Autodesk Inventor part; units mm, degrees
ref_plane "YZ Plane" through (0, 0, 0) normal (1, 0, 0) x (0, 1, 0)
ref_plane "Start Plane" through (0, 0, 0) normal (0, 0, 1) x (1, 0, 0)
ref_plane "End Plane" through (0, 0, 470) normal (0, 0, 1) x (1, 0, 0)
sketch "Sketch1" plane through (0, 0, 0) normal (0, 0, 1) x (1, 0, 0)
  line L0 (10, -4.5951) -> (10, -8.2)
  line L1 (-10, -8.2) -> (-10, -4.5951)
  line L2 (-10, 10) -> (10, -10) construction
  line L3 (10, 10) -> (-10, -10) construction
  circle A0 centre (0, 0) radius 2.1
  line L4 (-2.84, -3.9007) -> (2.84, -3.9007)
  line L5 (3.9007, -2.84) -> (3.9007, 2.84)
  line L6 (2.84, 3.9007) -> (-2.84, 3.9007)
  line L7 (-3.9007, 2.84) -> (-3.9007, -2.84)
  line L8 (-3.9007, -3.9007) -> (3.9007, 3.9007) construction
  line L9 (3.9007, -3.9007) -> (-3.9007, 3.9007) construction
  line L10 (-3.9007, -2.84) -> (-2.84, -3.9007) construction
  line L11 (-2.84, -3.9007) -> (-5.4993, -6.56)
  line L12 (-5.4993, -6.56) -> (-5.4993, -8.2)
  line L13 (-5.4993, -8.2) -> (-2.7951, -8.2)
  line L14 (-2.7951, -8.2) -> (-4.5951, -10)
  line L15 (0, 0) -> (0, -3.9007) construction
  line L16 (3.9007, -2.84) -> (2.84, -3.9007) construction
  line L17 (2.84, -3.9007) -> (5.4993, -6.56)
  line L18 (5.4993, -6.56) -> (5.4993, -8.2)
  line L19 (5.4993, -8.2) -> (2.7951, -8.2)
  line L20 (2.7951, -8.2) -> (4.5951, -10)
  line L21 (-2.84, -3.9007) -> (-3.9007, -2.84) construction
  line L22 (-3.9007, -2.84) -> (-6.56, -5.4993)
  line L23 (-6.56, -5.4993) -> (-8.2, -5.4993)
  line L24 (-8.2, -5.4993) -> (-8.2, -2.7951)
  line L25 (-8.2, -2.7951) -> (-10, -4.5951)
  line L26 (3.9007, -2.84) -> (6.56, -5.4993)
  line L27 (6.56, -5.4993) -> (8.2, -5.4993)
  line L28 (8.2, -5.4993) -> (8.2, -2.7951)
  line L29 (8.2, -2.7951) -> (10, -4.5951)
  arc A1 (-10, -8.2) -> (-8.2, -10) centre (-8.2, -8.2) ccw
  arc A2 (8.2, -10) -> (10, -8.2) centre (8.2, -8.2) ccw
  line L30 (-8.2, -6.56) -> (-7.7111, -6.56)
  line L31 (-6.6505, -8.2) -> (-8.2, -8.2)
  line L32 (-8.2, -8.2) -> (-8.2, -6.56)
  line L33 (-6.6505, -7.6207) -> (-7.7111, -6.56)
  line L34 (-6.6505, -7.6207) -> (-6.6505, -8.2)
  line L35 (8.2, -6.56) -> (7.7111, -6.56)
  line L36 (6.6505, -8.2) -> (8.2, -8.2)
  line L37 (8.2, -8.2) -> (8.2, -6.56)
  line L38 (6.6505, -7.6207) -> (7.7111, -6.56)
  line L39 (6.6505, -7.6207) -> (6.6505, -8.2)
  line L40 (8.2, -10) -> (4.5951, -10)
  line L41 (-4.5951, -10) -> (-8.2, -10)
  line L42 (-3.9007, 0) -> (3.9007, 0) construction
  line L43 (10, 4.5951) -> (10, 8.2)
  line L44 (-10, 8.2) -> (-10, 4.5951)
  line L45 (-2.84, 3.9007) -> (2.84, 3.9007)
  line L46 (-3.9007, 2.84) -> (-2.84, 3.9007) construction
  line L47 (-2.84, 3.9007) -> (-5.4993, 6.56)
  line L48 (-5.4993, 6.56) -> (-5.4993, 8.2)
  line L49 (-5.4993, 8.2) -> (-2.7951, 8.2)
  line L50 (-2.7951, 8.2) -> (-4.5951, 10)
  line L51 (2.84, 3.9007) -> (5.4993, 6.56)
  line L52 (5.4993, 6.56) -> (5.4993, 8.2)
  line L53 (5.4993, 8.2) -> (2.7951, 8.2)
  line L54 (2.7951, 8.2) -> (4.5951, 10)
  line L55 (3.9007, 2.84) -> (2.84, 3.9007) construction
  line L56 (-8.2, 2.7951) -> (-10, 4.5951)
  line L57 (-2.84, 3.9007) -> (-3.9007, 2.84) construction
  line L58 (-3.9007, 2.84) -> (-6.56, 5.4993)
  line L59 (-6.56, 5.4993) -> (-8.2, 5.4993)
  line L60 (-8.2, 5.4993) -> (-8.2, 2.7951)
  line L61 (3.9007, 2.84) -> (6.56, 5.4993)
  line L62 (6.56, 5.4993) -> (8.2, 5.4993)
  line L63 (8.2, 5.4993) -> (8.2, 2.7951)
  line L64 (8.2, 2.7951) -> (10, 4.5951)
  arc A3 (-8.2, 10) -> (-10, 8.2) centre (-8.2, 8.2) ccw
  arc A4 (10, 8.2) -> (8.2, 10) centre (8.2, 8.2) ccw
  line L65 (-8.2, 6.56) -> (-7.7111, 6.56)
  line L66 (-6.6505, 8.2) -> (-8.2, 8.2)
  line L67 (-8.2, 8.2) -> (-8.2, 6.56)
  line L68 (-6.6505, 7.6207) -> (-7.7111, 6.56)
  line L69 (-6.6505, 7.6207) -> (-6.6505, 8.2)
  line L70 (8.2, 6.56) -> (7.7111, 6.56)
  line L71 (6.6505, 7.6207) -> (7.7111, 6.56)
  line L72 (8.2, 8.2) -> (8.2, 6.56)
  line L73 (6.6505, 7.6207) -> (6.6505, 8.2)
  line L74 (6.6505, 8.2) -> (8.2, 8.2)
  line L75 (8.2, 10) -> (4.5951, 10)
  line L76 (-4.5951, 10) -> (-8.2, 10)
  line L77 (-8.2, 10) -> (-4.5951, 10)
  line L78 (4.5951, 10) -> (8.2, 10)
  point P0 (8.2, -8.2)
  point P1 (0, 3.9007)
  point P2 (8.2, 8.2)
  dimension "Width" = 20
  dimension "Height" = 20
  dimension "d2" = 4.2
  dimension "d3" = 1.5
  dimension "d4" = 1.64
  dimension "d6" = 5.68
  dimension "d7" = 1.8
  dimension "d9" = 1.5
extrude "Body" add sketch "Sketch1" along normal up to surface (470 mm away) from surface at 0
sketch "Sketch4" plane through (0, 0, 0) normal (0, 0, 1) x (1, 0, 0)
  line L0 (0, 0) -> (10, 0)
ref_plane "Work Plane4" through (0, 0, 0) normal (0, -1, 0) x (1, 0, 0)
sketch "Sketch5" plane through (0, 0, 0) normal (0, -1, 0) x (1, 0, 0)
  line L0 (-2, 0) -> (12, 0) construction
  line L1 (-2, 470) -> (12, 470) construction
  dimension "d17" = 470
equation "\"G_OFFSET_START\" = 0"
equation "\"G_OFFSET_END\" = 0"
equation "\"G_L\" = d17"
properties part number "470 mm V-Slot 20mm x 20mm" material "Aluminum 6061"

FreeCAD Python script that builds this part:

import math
import FreeCAD as App
import Part
import Sketcher
from FreeCAD import Vector
Q = App.Units.Quantity


def add_polygon(sketch, points):
    """Adds a closed chain of lines whose ends are joined by coincident constraints."""
    first, n = sketch.GeometryCount, len(points)
    for a, b in zip(points, points[1:] + points[:1]):
        sketch.addGeometry(Part.LineSegment(App.Vector(*a, 0), App.Vector(*b, 0)), False)
    for i in range(n):
        sketch.addConstraint(Sketcher.Constraint("Coincident", first + i, 2, first + (i + 1) % n, 1))

doc = App.newDocument("Part")
body = doc.addObject("PartDesign::Body", "Body")

# Sketch on XY plane
sketch1 = doc.addObject("Sketcher::SketchObject", "Sketch")
body.addObject(sketch1)
sketch1.AttachmentSupport = (doc.XY_Plane, [""])
sketch1.MapMode = "FlatFace"
sketch1.addGeometry(Part.LineSegment(Vector(10, -8.2, 0), Vector(10, -4.6, 0)), False)  # 0
sketch1.addGeometry(Part.LineSegment(Vector(10, -4.6, 0), Vector(8.2, -2.8, 0)), False)  # 1
sketch1.addGeometry(Part.LineSegment(Vector(8.2, -2.8, 0), Vector(8.2, -5.5, 0)), False)  # 2
sketch1.addGeometry(Part.LineSegment(Vector(8.2, -5.5, 0), Vector(6.56, -5.5, 0)), False)  # 3
sketch1.addGeometry(Part.LineSegment(Vector(6.56, -5.5, 0), Vector(3.9, -2.84, 0)), False)  # 4
sketch1.addGeometry(Part.LineSegment(Vector(3.9, -2.84, 0), Vector(3.9, 2.84, 0)), False)  # 5
sketch1.addGeometry(Part.LineSegment(Vector(3.9, 2.84, 0), Vector(6.56, 5.5, 0)), False)  # 6
sketch1.addGeometry(Part.LineSegment(Vector(6.56, 5.5, 0), Vector(8.2, 5.5, 0)), False)  # 7
sketch1.addGeometry(Part.LineSegment(Vector(8.2, 5.5, 0), Vector(8.2, 2.8, 0)), False)  # 8
sketch1.addGeometry(Part.LineSegment(Vector(8.2, 2.8, 0), Vector(10, 4.6, 0)), False)  # 9
sketch1.addGeometry(Part.LineSegment(Vector(10, 4.6, 0), Vector(10, 8.2, 0)), False)  # 10
sketch1.addGeometry(Part.ArcOfCircle(Part.Circle(Vector(8.2, 8.2, 0), Vector(0, 0, 1), 1.8), math.radians(0), math.radians(90)), False)  # 11
sketch1.addGeometry(Part.LineSegment(Vector(8.2, 10, 0), Vector(4.6, 10, 0)), False)  # 12
sketch1.addGeometry(Part.LineSegment(Vector(4.6, 10, 0), Vector(2.8, 8.2, 0)), False)  # 13
sketch1.addGeometry(Part.LineSegment(Vector(2.8, 8.2, 0), Vector(5.5, 8.2, 0)), False)  # 14
sketch1.addGeometry(Part.LineSegment(Vector(5.5, 8.2, 0), Vector(5.5, 6.56, 0)), False)  # 15
sketch1.addGeometry(Part.LineSegment(Vector(5.5, 6.56, 0), Vector(2.84, 3.9, 0)), False)  # 16
sketch1.addGeometry(Part.LineSegment(Vector(2.84, 3.9, 0), Vector(-2.84, 3.9, 0)), False)  # 17
sketch1.addGeometry(Part.LineSegment(Vector(-2.84, 3.9, 0), Vector(-5.5, 6.56, 0)), False)  # 18
sketch1.addGeometry(Part.LineSegment(Vector(-5.5, 6.56, 0), Vector(-5.5, 8.2, 0)), False)  # 19
sketch1.addGeometry(Part.LineSegment(Vector(-5.5, 8.2, 0), Vector(-2.8, 8.2, 0)), False)  # 20
sketch1.addGeometry(Part.LineSegment(Vector(-2.8, 8.2, 0), Vector(-4.6, 10, 0)), False)  # 21
sketch1.addGeometry(Part.LineSegment(Vector(-4.6, 10, 0), Vector(-8.2, 10, 0)), False)  # 22
sketch1.addGeometry(Part.ArcOfCircle(Part.Circle(Vector(-8.2, 8.2, 0), Vector(0, 0, 1), 1.8), math.radians(90), math.radians(180)), False)  # 23
sketch1.addGeometry(Part.LineSegment(Vector(-10, 8.2, 0), Vector(-10, 4.6, 0)), False)  # 24
sketch1.addGeometry(Part.LineSegment(Vector(-10, 4.6, 0), Vector(-8.2, 2.8, 0)), False)  # 25
sketch1.addGeometry(Part.LineSegment(Vector(-8.2, 2.8, 0), Vector(-8.2, 5.5, 0)), False)  # 26
sketch1.addGeometry(Part.LineSegment(Vector(-8.2, 5.5, 0), Vector(-6.56, 5.5, 0)), False)  # 27
sketch1.addGeometry(Part.LineSegment(Vector(-6.56, 5.5, 0), Vector(-3.9, 2.84, 0)), False)  # 28
sketch1.addGeometry(Part.LineSegment(Vector(-3.9, 2.84, 0), Vector(-3.9, -2.84, 0)), False)  # 29
sketch1.addGeometry(Part.LineSegment(Vector(-3.9, -2.84, 0), Vector(-6.56, -5.5, 0)), False)  # 30
sketch1.addGeometry(Part.LineSegment(Vector(-6.56, -5.5, 0), Vector(-8.2, -5.5, 0)), False)  # 31
sketch1.addGeometry(Part.LineSegment(Vector(-8.2, -5.5, 0), Vector(-8.2, -2.8, 0)), False)  # 32
sketch1.addGeometry(Part.LineSegment(Vector(-8.2, -2.8, 0), Vector(-10, -4.6, 0)), False)  # 33
sketch1.addGeometry(Part.LineSegment(Vector(-10, -4.6, 0), Vector(-10, -8.2, 0)), False)  # 34
sketch1.addGeometry(Part.ArcOfCircle(Part.Circle(Vector(-8.2, -8.2, 0), Vector(0, 0, 1), 1.8), math.radians(180), math.radians(270)), False)  # 35
sketch1.addGeometry(Part.LineSegment(Vector(-8.2, -10, 0), Vector(-4.6, -10, 0)), False)  # 36
sketch1.addGeometry(Part.LineSegment(Vector(-4.6, -10, 0), Vector(-2.8, -8.2, 0)), False)  # 37
sketch1.addGeometry(Part.LineSegment(Vector(-2.8, -8.2, 0), Vector(-5.5, -8.2, 0)), False)  # 38
sketch1.addGeometry(Part.LineSegment(Vector(-5.5, -8.2, 0), Vector(-5.5, -6.56, 0)), False)  # 39
sketch1.addGeometry(Part.LineSegment(Vector(-5.5, -6.56, 0), Vector(-2.84, -3.9, 0)), False)  # 40
sketch1.addGeometry(Part.LineSegment(Vector(-2.84, -3.9, 0), Vector(2.84, -3.9, 0)), False)  # 41
sketch1.addGeometry(Part.LineSegment(Vector(2.84, -3.9, 0), Vector(5.5, -6.56, 0)), False)  # 42
sketch1.addGeometry(Part.LineSegment(Vector(5.5, -6.56, 0), Vector(5.5, -8.2, 0)), False)  # 43
sketch1.addGeometry(Part.LineSegment(Vector(5.5, -8.2, 0), Vector(2.8, -8.2, 0)), False)  # 44
sketch1.addGeometry(Part.LineSegment(Vector(2.8, -8.2, 0), Vector(4.6, -10, 0)), False)  # 45
sketch1.addGeometry(Part.LineSegment(Vector(4.6, -10, 0), Vector(8.2, -10, 0)), False)  # 46
sketch1.addGeometry(Part.ArcOfCircle(Part.Circle(Vector(8.2, -8.2, 0), Vector(0, 0, 1), 1.8), math.radians(-90), math.radians(0)), False)  # 47
add_polygon(sketch1, [(-8.2, -8.2), (-8.2, -6.56), (-7.71, -6.56), (-6.65, -7.62), (-6.65, -8.2)])  # lines 48-52
add_polygon(sketch1, [(7.71, -6.56), (8.2, -6.56), (8.2, -8.2), (6.65, -8.2), (6.65, -7.62)])  # lines 53-57
add_polygon(sketch1, [(-7.71, 6.56), (-8.2, 6.56), (-8.2, 8.2), (-6.65, 8.2), (-6.65, 7.62)])  # lines 58-62
sketch1.addGeometry(Part.Circle(Vector(0, 0, 0), Vector(0, 0, 1), 2.1), False)  # 63
add_polygon(sketch1, [(8.2, 8.2), (8.2, 6.56), (7.71, 6.56), (6.65, 7.62), (6.65, 8.2)])  # lines 64-68
sketch1.addConstraint(Sketcher.Constraint("Coincident", 0, 2, 1, 1))
sketch1.addConstraint(Sketcher.Constraint("Coincident", 1, 2, 2, 1))
sketch1.addConstraint(Sketcher.Constraint("Coincident", 2, 2, 3, 1))
sketch1.addConstraint(Sketcher.Constraint("Coincident", 3, 2, 4, 1))
sketch1.addConstraint(Sketcher.Constraint("Coincident", 4, 2, 5, 1))
sketch1.addConstraint(Sketcher.Constraint("Coincident", 5, 2, 6, 1))
sketch1.addConstraint(Sketcher.Constraint("Coincident", 6, 2, 7, 1))
sketch1.addConstraint(Sketcher.Constraint("Coincident", 7, 2, 8, 1))
sketch1.addConstraint(Sketcher.Constraint("Coincident", 8, 2, 9, 1))
sketch1.addConstraint(Sketcher.Constraint("Coincident", 9, 2, 10, 1))
sketch1.addConstraint(Sketcher.Constraint("Tangent", 10, 2, 11, 1))
sketch1.addConstraint(Sketcher.Constraint("Tangent", 11, 2, 12, 1))
sketch1.addConstraint(Sketcher.Constraint("Coincident", 12, 2, 13, 1))
sketch1.addConstraint(Sketcher.Constraint("Coincident", 13, 2, 14, 1))
sketch1.addConstraint(Sketcher.Constraint("Coincident", 14, 2, 15, 1))
sketch1.addConstraint(Sketcher.Constraint("Coincident", 15, 2, 16, 1))
sketch1.addConstraint(Sketcher.Constraint("Coincident", 16, 2, 17, 1))
sketch1.addConstraint(Sketcher.Constraint("Coincident", 17, 2, 18, 1))
sketch1.addConstraint(Sketcher.Constraint("Coincident", 18, 2, 19, 1))
sketch1.addConstraint(Sketcher.Constraint("Coincident", 19, 2, 20, 1))
sketch1.addConstraint(Sketcher.Constraint("Coincident", 20, 2, 21, 1))
sketch1.addConstraint(Sketcher.Constraint("Coincident", 21, 2, 22, 1))
sketch1.addConstraint(Sketcher.Constraint("Tangent", 22, 2, 23, 1))
sketch1.addConstraint(Sketcher.Constraint("Tangent", 23, 2, 24, 1))
sketch1.addConstraint(Sketcher.Constraint("Coincident", 24, 2, 25, 1))
sketch1.addConstraint(Sketcher.Constraint("Coincident", 25, 2, 26, 1))
sketch1.addConstraint(Sketcher.Constraint("Coincident", 26, 2, 27, 1))
sketch1.addConstraint(Sketcher.Constraint("Coincident", 27, 2, 28, 1))
sketch1.addConstraint(Sketcher.Constraint("Coincident", 28, 2, 29, 1))
sketch1.addConstraint(Sketcher.Constraint("Coincident", 29, 2, 30, 1))
sketch1.addConstraint(Sketcher.Constraint("Coincident", 30, 2, 31, 1))
sketch1.addConstraint(Sketcher.Constraint("Coincident", 31, 2, 32, 1))
sketch1.addConstraint(Sketcher.Constraint("Coincident", 32, 2, 33, 1))
sketch1.addConstraint(Sketcher.Constraint("Coincident", 33, 2, 34, 1))
sketch1.addConstraint(Sketcher.Constraint("Tangent", 34, 2, 35, 1))
sketch1.addConstraint(Sketcher.Constraint("Tangent", 35, 2, 36, 1))
sketch1.addConstraint(Sketcher.Constraint("Coincident", 36, 2, 37, 1))
sketch1.addConstraint(Sketcher.Constraint("Coincident", 37, 2, 38, 1))
sketch1.addConstraint(Sketcher.Constraint("Coincident", 38, 2, 39, 1))
sketch1.addConstraint(Sketcher.Constraint("Coincident", 39, 2, 40, 1))
sketch1.addConstraint(Sketcher.Constraint("Coincident", 40, 2, 41, 1))
sketch1.addConstraint(Sketcher.Constraint("Coincident", 41, 2, 42, 1))
sketch1.addConstraint(Sketcher.Constraint("Coincident", 42, 2, 43, 1))
sketch1.addConstraint(Sketcher.Constraint("Coincident", 43, 2, 44, 1))
sketch1.addConstraint(Sketcher.Constraint("Coincident", 44, 2, 45, 1))
sketch1.addConstraint(Sketcher.Constraint("Coincident", 45, 2, 46, 1))
sketch1.addConstraint(Sketcher.Constraint("Tangent", 46, 2, 47, 1))
sketch1.addConstraint(Sketcher.Constraint("Tangent", 47, 2, 0, 1))
sketch1.addConstraint(Sketcher.Constraint("Vertical", 0))
sketch1.addConstraint(Sketcher.Constraint("Vertical", 2))
sketch1.addConstraint(Sketcher.Constraint("Horizontal", 3))
sketch1.addConstraint(Sketcher.Constraint("Vertical", 5))
sketch1.addConstraint(Sketcher.Constraint("Horizontal", 7))
sketch1.addConstraint(Sketcher.Constraint("Vertical", 8))
sketch1.addConstraint(Sketcher.Constraint("Vertical", 10))
sketch1.addConstraint(Sketcher.Constraint("Horizontal", 12))
sketch1.addConstraint(Sketcher.Constraint("Horizontal", 14))
sketch1.addConstraint(Sketcher.Constraint("Vertical", 15))
sketch1.addConstraint(Sketcher.Constraint("Horizontal", 17))
sketch1.addConstraint(Sketcher.Constraint("Vertical", 19))
sketch1.addConstraint(Sketcher.Constraint("Horizontal", 20))
sketch1.addConstraint(Sketcher.Constraint("Horizontal", 22))
sketch1.addConstraint(Sketcher.Constraint("Vertical", 24))
sketch1.addConstraint(Sketcher.Constraint("Vertical", 26))
sketch1.addConstraint(Sketcher.Constraint("Horizontal", 27))
sketch1.addConstraint(Sketcher.Constraint("Vertical", 29))
sketch1.addConstraint(Sketcher.Constraint("Horizontal", 31))
sketch1.addConstraint(Sketcher.Constraint("Vertical", 32))
sketch1.addConstraint(Sketcher.Constraint("Vertical", 34))
sketch1.addConstraint(Sketcher.Constraint("Horizontal", 36))
sketch1.addConstraint(Sketcher.Constraint("Horizontal", 38))
sketch1.addConstraint(Sketcher.Constraint("Vertical", 39))
sketch1.addConstraint(Sketcher.Constraint("Horizontal", 41))
sketch1.addConstraint(Sketcher.Constraint("Vertical", 43))
sketch1.addConstraint(Sketcher.Constraint("Horizontal", 44))
sketch1.addConstraint(Sketcher.Constraint("Horizontal", 46))
sketch1.addConstraint(Sketcher.Constraint("Vertical", 48))
sketch1.addConstraint(Sketcher.Constraint("Horizontal", 49))
sketch1.addConstraint(Sketcher.Constraint("Vertical", 51))
sketch1.addConstraint(Sketcher.Constraint("Horizontal", 52))
sketch1.addConstraint(Sketcher.Constraint("Horizontal", 53))
sketch1.addConstraint(Sketcher.Constraint("Vertical", 54))
sketch1.addConstraint(Sketcher.Constraint("Horizontal", 55))
sketch1.addConstraint(Sketcher.Constraint("Vertical", 56))
sketch1.addConstraint(Sketcher.Constraint("Horizontal", 58))
sketch1.addConstraint(Sketcher.Constraint("Vertical", 59))
sketch1.addConstraint(Sketcher.Constraint("Horizontal", 60))
sketch1.addConstraint(Sketcher.Constraint("Vertical", 61))
sketch1.addConstraint(Sketcher.Constraint("Vertical", 64))
sketch1.addConstraint(Sketcher.Constraint("Horizontal", 65))
sketch1.addConstraint(Sketcher.Constraint("Vertical", 67))
sketch1.addConstraint(Sketcher.Constraint("Horizontal", 68))
sketch1.addConstraint(Sketcher.Constraint("Coincident", 63, 3, -1, 1))
sketch1.addConstraint(Sketcher.Constraint("Coincident", 52, 2, 35, 3))
sketch1.addConstraint(Sketcher.Constraint("Coincident", 54, 2, 47, 3))
sketch1.addConstraint(Sketcher.Constraint("Coincident", 59, 2, 23, 3))
sketch1.addConstraint(Sketcher.Constraint("Coincident", 68, 2, 11, 3))
sketch1.addConstraint(Sketcher.Constraint("Equal", 11, 23))
sketch1.addConstraint(Sketcher.Constraint("Equal", 23, 35))
sketch1.addConstraint(Sketcher.Constraint("Equal", 35, 47))
sketch1.addConstraint(Sketcher.Constraint("Symmetric", 11, 3, 35, 3, -1, 1))
sketch1.addConstraint(Sketcher.Constraint("Symmetric", 23, 3, 47, 3, -1, 1))
sketch1.addConstraint(Sketcher.Constraint("Symmetric", 1, 2, 25, 2, -1, 1))
sketch1.addConstraint(Sketcher.Constraint("Symmetric", 3, 2, 27, 2, -1, 1))
sketch1.addConstraint(Sketcher.Constraint("Symmetric", 4, 2, 28, 2, -1, 1))
sketch1.addConstraint(Sketcher.Constraint("Symmetric", 6, 2, 30, 2, -1, 1))
sketch1.addConstraint(Sketcher.Constraint("Symmetric", 8, 2, 32, 2, -1, 1))
sketch1.addConstraint(Sketcher.Constraint("Symmetric", 13, 2, 37, 2, -1, 1))
sketch1.addConstraint(Sketcher.Constraint("Symmetric", 15, 2, 39, 2, -1, 1))
sketch1.addConstraint(Sketcher.Constraint("Symmetric", 16, 2, 40, 2, -1, 1))
sketch1.addConstraint(Sketcher.Constraint("Symmetric", 18, 2, 42, 2, -1, 1))
sketch1.addConstraint(Sketcher.Constraint("Symmetric", 20, 2, 44, 2, -1, 1))
sketch1.addConstraint(Sketcher.Constraint("Symmetric", 56, 2, 61, 2, -1, 1))
sketch1.addConstraint(Sketcher.Constraint("Symmetric", 57, 2, 62, 2, -1, 1))
sketch1.addConstraint(Sketcher.Constraint("Symmetric", 49, 2, 65, 2, -1, 1))
sketch1.addConstraint(Sketcher.Constraint("Symmetric", 50, 2, 66, 2, -1, 1))
sketch1.addConstraint(Sketcher.Constraint("Symmetric", 11, 3, 23, 3, -2))
sketch1.addConstraint(Sketcher.Constraint("Symmetric", 15, 2, 18, 2, -2))
sketch1.addConstraint(Sketcher.Constraint("Symmetric", 13, 2, 20, 2, -2))
sketch1.addConstraint(Sketcher.Constraint("Symmetric", 8, 2, 25, 2, -2))
sketch1.addConstraint(Sketcher.Constraint("Symmetric", 6, 2, 27, 2, -2))
sketch1.addConstraint(Sketcher.Constraint("Symmetric", 50, 2, 56, 2, -2))
sketch1.addConstraint(Sketcher.Constraint("Symmetric", 49, 2, 57, 2, -2))
sketch1.addConstraint(Sketcher.Constraint("Parallel", 1, 4))
sketch1.addConstraint(Sketcher.Constraint("Perpendicular", 4, 6))
sketch1.addConstraint(Sketcher.Constraint("Parallel", 6, 9))
sketch1.addConstraint(Sketcher.Constraint("Parallel", 9, 13))
sketch1.addConstraint(Sketcher.Constraint("Parallel", 13, 16))
sketch1.addConstraint(Sketcher.Constraint("Perpendicular", 16, 18))
sketch1.addConstraint(Sketcher.Constraint("Parallel", 18, 21))
sketch1.addConstraint(Sketcher.Constraint("Parallel", 21, 25))
sketch1.addConstraint(Sketcher.Constraint("Perpendicular", 28, 30))
sketch1.addConstraint(Sketcher.Constraint("Parallel", 30, 33))
sketch1.addConstraint(Sketcher.Constraint("Parallel", 33, 37))
sketch1.addConstraint(Sketcher.Constraint("Perpendicular", 40, 42))
sketch1.addConstraint(Sketcher.Constraint("Parallel", 42, 45))
sketch1.addConstraint(Sketcher.Constraint("Parallel", 45, 50))
sketch1.addConstraint(Sketcher.Constraint("Perpendicular", 50, 57))
sketch1.addConstraint(Sketcher.Constraint("Horizontal", 10, 2, 13, 2))
sketch1.addConstraint(Sketcher.Constraint("Horizontal", 42, 2, 48, 2))
sketch1.addConstraint(Sketcher.Constraint("Vertical", 47, 3, 1, 2))
sketch1.addConstraint(Sketcher.Constraint("Equal", 46, 0))
sketch1.addConstraint(Sketcher.Constraint("Equal", 44, 2))
sketch1.addConstraint(Sketcher.Constraint("Equal", 41, 5))
sketch1.addConstraint(Sketcher.Constraint("Equal", 31, 15))
sketch1.addConstraint(Sketcher.Constraint("Equal", 6, 16))
sketch1.addConstraint(Sketcher.Constraint("Diameter", 63, Q("4.2 mm")))
sketch1.addConstraint(Sketcher.Constraint("Radius", 11, Q("1.8 mm")))
sketch1.addConstraint(Sketcher.Constraint("Distance", 50, Q("1.5 mm")))
sketch1.addConstraint(Sketcher.Constraint("DistanceX", 3, 2, 3, 1, Q("1.64 mm")))
sketch1.addConstraint(Sketcher.Constraint("DistanceX", 17, 2, 17, 1, Q("5.68 mm")))
sketch1.addConstraint(Sketcher.Constraint("DistanceX", -1, 1, 0, 2, Q("10 mm")))
sketch1.addConstraint(Sketcher.Constraint("DistanceX", 12, 2, 12, 1, Q("3.605 mm")))
sketch1.addConstraint(Sketcher.Constraint("DistanceX", 49, 1, 49, 2, Q("0.489 mm")))
sketch1.addConstraint(Sketcher.Constraint("DistanceX", 14, 1, 14, 2, Q("2.7042 mm")))
pad1 = doc.addObject("PartDesign::Pad", "Pad")
body.addObject(pad1)
pad1.Profile = sketch1
pad1.Length = 470

doc.recompute()
